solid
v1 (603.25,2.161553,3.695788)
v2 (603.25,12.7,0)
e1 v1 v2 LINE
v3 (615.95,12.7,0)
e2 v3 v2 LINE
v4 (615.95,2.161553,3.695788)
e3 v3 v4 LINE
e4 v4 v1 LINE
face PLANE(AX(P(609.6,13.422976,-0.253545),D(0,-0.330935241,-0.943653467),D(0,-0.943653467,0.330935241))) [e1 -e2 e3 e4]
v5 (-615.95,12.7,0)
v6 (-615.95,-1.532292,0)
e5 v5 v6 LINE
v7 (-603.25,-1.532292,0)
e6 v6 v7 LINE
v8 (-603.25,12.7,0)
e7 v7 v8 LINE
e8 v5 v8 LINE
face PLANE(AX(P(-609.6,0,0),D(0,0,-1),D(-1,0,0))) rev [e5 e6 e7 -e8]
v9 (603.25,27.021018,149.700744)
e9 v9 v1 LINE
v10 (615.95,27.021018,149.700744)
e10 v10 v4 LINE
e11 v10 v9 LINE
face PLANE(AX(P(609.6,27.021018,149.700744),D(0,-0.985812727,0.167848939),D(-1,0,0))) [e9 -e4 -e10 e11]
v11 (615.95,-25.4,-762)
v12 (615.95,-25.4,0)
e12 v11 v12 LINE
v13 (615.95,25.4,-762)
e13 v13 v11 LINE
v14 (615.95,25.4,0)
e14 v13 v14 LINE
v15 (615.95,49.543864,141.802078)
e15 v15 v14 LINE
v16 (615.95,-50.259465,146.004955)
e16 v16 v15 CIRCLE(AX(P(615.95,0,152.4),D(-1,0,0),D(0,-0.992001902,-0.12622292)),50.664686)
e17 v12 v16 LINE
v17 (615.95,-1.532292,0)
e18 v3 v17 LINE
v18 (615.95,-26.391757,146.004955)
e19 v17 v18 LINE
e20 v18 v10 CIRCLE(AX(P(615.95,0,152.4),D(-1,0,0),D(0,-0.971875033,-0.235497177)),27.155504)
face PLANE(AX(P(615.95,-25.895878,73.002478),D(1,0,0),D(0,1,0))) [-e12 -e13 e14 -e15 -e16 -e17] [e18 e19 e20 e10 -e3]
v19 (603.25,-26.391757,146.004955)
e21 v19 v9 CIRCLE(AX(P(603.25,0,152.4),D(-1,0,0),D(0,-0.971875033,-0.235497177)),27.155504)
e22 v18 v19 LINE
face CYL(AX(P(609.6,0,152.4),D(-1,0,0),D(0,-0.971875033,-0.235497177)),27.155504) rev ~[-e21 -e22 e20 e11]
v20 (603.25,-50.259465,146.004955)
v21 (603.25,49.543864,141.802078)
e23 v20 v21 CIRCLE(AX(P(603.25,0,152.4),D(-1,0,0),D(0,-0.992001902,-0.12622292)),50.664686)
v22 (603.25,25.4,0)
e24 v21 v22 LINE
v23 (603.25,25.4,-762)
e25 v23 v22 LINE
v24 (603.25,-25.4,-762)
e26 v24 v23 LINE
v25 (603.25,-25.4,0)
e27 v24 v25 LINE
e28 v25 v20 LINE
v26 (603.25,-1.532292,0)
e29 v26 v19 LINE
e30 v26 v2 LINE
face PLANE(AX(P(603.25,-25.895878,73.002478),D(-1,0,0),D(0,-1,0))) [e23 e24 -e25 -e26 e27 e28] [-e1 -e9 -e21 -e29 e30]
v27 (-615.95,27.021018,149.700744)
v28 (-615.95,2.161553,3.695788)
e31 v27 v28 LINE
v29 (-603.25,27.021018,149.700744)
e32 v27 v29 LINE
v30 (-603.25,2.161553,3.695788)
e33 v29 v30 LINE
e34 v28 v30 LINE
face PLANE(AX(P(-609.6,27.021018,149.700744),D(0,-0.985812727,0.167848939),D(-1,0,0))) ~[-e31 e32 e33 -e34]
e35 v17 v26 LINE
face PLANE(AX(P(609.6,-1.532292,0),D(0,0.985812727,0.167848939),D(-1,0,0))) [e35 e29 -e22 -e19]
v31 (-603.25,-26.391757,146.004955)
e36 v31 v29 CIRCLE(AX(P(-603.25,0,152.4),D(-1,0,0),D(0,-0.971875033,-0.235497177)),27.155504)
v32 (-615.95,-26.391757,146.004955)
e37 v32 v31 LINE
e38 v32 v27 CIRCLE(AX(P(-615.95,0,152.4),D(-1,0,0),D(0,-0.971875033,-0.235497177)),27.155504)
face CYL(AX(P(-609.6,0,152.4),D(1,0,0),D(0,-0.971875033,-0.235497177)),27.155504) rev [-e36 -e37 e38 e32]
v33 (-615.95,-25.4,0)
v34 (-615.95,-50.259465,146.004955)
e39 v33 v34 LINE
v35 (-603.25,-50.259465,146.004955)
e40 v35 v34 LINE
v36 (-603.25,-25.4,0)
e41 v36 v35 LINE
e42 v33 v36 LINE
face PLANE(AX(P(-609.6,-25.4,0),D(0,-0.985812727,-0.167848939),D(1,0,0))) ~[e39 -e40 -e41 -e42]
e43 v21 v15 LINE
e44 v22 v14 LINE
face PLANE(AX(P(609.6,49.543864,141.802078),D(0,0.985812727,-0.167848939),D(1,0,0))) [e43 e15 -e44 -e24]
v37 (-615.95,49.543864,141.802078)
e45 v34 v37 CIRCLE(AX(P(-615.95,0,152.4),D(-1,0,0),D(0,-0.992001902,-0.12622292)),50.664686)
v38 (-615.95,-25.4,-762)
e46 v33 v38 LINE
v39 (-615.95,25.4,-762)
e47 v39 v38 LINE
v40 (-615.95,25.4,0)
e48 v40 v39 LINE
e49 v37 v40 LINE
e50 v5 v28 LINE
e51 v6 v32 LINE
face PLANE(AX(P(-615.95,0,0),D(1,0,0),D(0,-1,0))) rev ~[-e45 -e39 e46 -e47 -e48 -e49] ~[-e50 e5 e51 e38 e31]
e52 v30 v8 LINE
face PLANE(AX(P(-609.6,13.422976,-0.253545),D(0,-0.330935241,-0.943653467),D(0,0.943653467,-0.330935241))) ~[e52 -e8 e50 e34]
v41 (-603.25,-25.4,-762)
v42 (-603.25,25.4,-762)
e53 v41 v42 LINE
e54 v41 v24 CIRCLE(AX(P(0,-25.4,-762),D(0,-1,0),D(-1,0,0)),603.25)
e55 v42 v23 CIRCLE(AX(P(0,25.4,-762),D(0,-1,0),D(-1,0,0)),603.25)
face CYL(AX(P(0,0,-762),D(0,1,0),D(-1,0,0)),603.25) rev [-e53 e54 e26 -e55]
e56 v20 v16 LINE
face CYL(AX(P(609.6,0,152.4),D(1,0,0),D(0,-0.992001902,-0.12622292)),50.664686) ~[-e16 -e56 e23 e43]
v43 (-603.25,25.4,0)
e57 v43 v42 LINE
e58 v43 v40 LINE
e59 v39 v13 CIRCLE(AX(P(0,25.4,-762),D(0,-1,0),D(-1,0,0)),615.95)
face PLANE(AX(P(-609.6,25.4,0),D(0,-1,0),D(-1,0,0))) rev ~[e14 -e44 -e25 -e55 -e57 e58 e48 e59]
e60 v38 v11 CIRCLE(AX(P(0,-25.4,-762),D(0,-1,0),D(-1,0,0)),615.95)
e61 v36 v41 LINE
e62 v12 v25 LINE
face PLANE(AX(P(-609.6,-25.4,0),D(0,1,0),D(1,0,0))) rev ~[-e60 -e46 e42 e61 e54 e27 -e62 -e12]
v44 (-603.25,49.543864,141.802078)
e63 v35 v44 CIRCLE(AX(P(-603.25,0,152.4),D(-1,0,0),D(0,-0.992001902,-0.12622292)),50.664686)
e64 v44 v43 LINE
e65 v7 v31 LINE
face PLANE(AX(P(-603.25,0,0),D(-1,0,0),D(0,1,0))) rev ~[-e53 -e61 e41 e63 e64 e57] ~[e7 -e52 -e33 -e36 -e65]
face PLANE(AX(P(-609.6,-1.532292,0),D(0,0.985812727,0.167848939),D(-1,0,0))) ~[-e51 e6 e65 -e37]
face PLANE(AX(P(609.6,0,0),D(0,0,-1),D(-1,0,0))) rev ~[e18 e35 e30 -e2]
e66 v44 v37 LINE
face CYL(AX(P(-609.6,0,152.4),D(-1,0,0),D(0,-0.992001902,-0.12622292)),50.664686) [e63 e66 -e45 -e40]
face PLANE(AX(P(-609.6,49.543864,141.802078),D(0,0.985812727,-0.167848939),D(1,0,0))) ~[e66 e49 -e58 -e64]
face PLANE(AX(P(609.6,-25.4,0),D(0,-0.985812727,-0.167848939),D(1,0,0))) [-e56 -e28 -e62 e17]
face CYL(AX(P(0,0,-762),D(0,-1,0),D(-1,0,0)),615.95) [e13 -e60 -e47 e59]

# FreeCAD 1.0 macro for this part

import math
import FreeCAD as App
import Part
import Sketcher
Q = App.Units.Quantity


def add_polygon(sketch, points):
    """Adds a closed chain of lines whose ends are joined by coincident constraints."""
    first, n = sketch.GeometryCount, len(points)
    for a, b in zip(points, points[1:] + points[:1]):
        sketch.addGeometry(Part.LineSegment(App.Vector(*a, 0), App.Vector(*b, 0)), False)
    for i in range(n):
        sketch.addConstraint(Sketcher.Constraint("Coincident", first + i, 2, first + (i + 1) % n, 1))

doc = App.newDocument("Part")
body = doc.addObject("PartDesign::Body", "Body")

# Sketch on XY plane
sketch1 = body.newObject("Sketcher::SketchObject", "Sketch")
sketch1.AttachmentSupport = (doc.getObject("XY_Plane"), [""])
sketch1.MapMode = "FlatFace"
add_polygon(sketch1, [(-615.95, 25.4), (-615.95, -25.4), (-603.25, -25.4), (-603.25, 25.4)])  # lines 0-3
sketch1.addConstraint([
    Sketcher.Constraint("Vertical", 0),
    Sketcher.Constraint("Horizontal", 1),
    Sketcher.Constraint("Vertical", 2),
    Sketcher.Constraint("Horizontal", 3),
    Sketcher.Constraint("DistanceY", 0, 2, 0, 1, Q("2 in")),
    Sketcher.Constraint("DistanceX", 1, 1, 1, 2, Q("0.5 in")),
    Sketcher.Constraint("DistanceY", 0, 2, -1, 1, Q("1 in")),
    Sketcher.Constraint("DistanceX", 0, 2, -1, 1, Q("24.25 in")),
])

# Sketch on XZ plane
sketch2 = body.newObject("Sketcher::SketchObject", "Sketch001")
sketch2.AttachmentSupport = (doc.getObject("XZ_Plane"), [""])
sketch2.MapMode = "FlatFace"
sketch2.addGeometry([
    Part.LineSegment(App.Vector(-609.6, 0, 0), App.Vector(-609.6, -762, 0)),
    Part.ArcOfCircle(Part.Circle(App.Vector(0, -762, 0), App.Vector(0, 0, 1), 609.6), math.radians(180), math.radians(360)),
    Part.LineSegment(App.Vector(609.6, -762, 0), App.Vector(609.6, 0, 0)),
], False)
sketch2.addConstraint([
    Sketcher.Constraint("Tangent", 0, 2, 1, 1),
    Sketcher.Constraint("Tangent", 1, 2, 2, 1),
    Sketcher.Constraint("Vertical", 0),
    Sketcher.Constraint("Vertical", 2),
    Sketcher.Constraint("Symmetric", 0, 1, 2, 2, -1, 1),
    Sketcher.Constraint("PointOnObject", 0, 1, -1),
    Sketcher.Constraint("Radius", 1, Q("24 in")),
    Sketcher.Constraint("DistanceY", 0, 2, 0, 1, Q("30 in")),
])
doc.recompute()

additivepipe = body.newObject("PartDesign::AdditivePipe", "AdditivePipe")
additivepipe.Profile = sketch1
additivepipe.Spine = (sketch2, ["Edge1", "Edge2", "Edge3"])

# Sketch on XY plane
sketch3 = body.newObject("Sketcher::SketchObject", "Sketch002")
sketch3.AttachmentSupport = (doc.getObject("XY_Plane"), [""])
sketch3.MapMode = "FlatFace"
add_polygon(sketch3, [(603.25, -1.532292), (603.25, -25.4), (615.95, -25.4), (615.95, -1.532292)])  # lines 0-3
sketch3.addConstraint([
    Sketcher.Constraint("Vertical", 0),
    Sketcher.Constraint("Horizontal", 1),
    Sketcher.Constraint("Vertical", 2),
    Sketcher.Constraint("Horizontal", 3),
    Sketcher.Constraint("DistanceX", 1, 1, 1, 2, Q("0.5 in")),
    Sketcher.Constraint("DistanceY", 0, 2, -1, 1, Q("1 in")),
    Sketcher.Constraint("DistanceX", -1, 1, 0, 2, Q("23.75 in")),
    Sketcher.Constraint("DistanceY", 0, 2, 0, 1, Q("23.867708 mm")),
])

# Sketch on YZ plane
sketch4 = body.newObject("Sketcher::SketchObject", "Sketch003")
sketch4.AttachmentSupport = (doc.getObject("YZ_Plane"), [""])
sketch4.MapMode = "FlatFace"
sketch4.AttachmentOffset = App.Placement(App.Vector(0, 0, 24 * 25.4), App.Rotation())
sketch4.addGeometry([
    Part.LineSegment(App.Vector(-12.7, 0, 0), App.Vector(-37.559465, 146.004955, 0)),
    Part.ArcOfCircle(Part.Circle(App.Vector(0, 152.4, 0), App.Vector(0, 0, 1), 38.1), math.radians(-9.662775), math.radians(189.662775)),
    Part.LineSegment(App.Vector(37.559465, 146.004955, 0), App.Vector(12.7, 0, 0)),
], False)
sketch4.addConstraint([
    Sketcher.Constraint("Tangent", 0, 2, 1, 2),
    Sketcher.Constraint("Tangent", 1, 1, 2, 1),
    Sketcher.Constraint("Symmetric", 0, 1, 2, 2, -1, 1),
    Sketcher.Constraint("PointOnObject", 1, 3, -2),
    Sketcher.Constraint("PointOnObject", 0, 1, -1),
    Sketcher.Constraint("Radius", 1, Q("1.5 in")),
    Sketcher.Constraint("DistanceY", -1, 1, 1, 3, Q("6 in")),
    Sketcher.Constraint("DistanceX", 0, 1, 2, 2, Q("1 in")),
])
doc.recompute()

additivepipe2 = body.newObject("PartDesign::AdditivePipe", "AdditivePipe001")
additivepipe2.Profile = sketch3
additivepipe2.Spine = (sketch4, ["Edge1", "Edge2", "Edge3"])
body2 = doc.addObject("PartDesign::Body", "Body001")
doc.recompute()

body2.BaseFeature = body
doc.recompute()

mirroring = doc.addObject("Part::Mirroring", "Mirroring")
mirroring.Source = body
mirroring.Base = App.Vector(0, 0, 0)
mirroring.Normal = App.Vector(1, 0, 0)
body3 = doc.addObject("PartDesign::Body", "Body002")
body3.BaseFeature = mirroring
boolean = body2.newObject("PartDesign::Boolean", "Boolean")
boolean.Type = "Fuse"
boolean.addObjects([body3])
doc.recompute()
mirroring.Visibility = False

doc.recompute()
